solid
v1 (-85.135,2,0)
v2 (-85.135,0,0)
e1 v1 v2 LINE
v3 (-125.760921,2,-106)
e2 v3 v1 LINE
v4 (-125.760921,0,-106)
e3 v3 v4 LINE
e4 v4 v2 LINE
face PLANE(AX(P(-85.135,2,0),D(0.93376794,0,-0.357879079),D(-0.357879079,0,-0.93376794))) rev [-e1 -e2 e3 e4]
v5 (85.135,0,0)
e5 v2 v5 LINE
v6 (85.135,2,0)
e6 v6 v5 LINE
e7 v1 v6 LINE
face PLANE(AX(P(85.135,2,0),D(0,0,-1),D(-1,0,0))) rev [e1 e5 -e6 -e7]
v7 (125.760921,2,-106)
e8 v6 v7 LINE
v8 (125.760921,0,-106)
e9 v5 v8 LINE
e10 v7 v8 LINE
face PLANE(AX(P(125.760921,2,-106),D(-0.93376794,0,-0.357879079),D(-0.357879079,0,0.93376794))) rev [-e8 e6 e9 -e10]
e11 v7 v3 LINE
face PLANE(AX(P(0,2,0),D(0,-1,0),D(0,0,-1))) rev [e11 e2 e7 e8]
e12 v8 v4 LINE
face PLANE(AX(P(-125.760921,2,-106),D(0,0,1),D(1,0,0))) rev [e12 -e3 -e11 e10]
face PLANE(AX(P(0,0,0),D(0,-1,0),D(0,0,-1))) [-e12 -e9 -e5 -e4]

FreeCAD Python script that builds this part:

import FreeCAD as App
import Part
import Sketcher
Q = App.Units.Quantity


def add_polygon(sketch, points):
    """Adds a closed chain of lines whose ends are joined by coincident constraints."""
    first, n = sketch.GeometryCount, len(points)
    for a, b in zip(points, points[1:] + points[:1]):
        sketch.addGeometry(Part.LineSegment(App.Vector(*a, 0), App.Vector(*b, 0)), False)
    for i in range(n):
        sketch.addConstraint(Sketcher.Constraint("Coincident", first + i, 2, first + (i + 1) % n, 1))

doc = App.newDocument("Part")
params = doc.addObject("Spreadsheet::Sheet", "Params")
for row, (alias, value) in enumerate([
    ("sketch1_width", "170.27 mm"),
    ("pad1_length", "2 mm"),
], start=1):
    params.set(f"A{row}", alias)
    params.set(f"B{row}", "=" + value)
    params.setAlias(f"B{row}", alias)

body = doc.addObject("PartDesign::Body", "Body")

sketch1 = body.newObject("Sketcher::SketchObject", "Sketch")
sketch1.AttachmentSupport = (doc.getObject("XZ_Plane"), [""])
sketch1.MapMode = "FlatFace"
add_polygon(sketch1, [(85, 0), (126, -106), (-126, -106), (-85, 0)])
sketch1.addConstraint([
    Sketcher.Constraint("Horizontal", 1),
    Sketcher.Constraint("Horizontal", 3),
    Sketcher.Constraint("Symmetric", 2, 2, 3, 2, -1, 1),
    Sketcher.Constraint("Equal", 0, 2),
    Sketcher.Constraint("DistanceY", 0, 2, -1, 1, 106.0),
    Sketcher.Constraint("DistanceX", 3, 1, 3, 2, 170.27),
    Sketcher.Constraint("Angle", 0, Q("-69.03 deg")),
])
sketch1.setExpression("Constraints[9]", "Params.sketch1_width")
pad1 = body.newObject("PartDesign::Pad", "Pad")
pad1.Profile = sketch1
pad1.setExpression("Length", "Params.pad1_length")
pad1.Reversed = True

doc.recompute()
